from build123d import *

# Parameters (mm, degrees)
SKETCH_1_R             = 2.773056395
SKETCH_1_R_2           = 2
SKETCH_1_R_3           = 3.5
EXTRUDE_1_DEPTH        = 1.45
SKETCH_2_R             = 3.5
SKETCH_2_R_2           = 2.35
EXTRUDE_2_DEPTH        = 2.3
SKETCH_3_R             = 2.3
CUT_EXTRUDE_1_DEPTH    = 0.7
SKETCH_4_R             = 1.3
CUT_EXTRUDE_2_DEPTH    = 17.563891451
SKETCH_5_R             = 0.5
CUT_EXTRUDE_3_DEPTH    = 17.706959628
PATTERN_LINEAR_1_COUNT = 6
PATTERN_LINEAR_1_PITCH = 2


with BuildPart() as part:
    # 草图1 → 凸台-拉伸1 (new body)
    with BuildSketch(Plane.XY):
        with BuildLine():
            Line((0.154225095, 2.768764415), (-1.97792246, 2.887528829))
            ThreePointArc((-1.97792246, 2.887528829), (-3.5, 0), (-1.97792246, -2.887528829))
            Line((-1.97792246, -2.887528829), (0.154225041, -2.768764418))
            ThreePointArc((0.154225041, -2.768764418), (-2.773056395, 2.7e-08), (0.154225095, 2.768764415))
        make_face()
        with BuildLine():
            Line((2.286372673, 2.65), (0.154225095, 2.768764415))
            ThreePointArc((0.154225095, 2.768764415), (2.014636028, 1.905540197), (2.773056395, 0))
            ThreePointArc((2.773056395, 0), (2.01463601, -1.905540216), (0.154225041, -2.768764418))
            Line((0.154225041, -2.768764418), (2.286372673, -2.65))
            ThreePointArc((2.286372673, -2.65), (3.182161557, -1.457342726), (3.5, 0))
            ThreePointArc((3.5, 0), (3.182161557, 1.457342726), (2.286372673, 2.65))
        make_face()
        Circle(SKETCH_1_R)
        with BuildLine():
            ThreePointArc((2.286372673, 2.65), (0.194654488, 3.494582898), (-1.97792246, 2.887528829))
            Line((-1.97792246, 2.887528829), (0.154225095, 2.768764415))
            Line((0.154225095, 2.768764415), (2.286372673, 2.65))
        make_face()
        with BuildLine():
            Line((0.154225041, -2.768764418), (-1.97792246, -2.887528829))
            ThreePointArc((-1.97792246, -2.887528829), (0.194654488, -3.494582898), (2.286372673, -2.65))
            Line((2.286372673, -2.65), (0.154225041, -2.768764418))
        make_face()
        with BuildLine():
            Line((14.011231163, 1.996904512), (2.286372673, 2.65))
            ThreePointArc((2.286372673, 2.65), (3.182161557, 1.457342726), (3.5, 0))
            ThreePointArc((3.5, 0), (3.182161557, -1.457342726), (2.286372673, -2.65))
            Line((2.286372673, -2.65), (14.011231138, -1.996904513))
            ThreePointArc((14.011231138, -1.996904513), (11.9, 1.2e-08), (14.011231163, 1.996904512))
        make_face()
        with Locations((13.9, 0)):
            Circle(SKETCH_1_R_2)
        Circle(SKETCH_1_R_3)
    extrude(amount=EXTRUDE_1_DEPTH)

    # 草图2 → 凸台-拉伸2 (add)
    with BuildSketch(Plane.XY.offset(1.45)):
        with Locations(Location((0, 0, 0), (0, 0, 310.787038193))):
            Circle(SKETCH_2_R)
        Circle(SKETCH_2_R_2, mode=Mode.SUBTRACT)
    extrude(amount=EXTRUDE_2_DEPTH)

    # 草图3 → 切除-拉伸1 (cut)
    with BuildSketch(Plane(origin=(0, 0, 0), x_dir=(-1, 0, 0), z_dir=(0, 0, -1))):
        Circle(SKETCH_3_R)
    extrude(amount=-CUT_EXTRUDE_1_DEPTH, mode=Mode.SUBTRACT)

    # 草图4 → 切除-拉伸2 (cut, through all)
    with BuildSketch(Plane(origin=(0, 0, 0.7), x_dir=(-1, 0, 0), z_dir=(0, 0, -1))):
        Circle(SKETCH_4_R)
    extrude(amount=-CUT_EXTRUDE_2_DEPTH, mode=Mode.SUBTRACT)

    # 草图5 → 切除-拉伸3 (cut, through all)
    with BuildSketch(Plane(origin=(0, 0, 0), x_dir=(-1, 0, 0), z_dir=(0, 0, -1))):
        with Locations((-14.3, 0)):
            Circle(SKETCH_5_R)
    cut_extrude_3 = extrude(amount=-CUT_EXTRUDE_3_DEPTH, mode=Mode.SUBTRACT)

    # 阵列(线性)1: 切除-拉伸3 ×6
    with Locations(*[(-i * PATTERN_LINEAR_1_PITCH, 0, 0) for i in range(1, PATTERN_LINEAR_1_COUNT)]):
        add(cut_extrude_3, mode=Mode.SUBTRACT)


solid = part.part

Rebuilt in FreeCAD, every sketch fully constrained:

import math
import FreeCAD as App
import Part
import Sketcher

V = App.Vector
Q = App.Units.Quantity

doc = App.newDocument("Part")
body = doc.addObject("PartDesign::Body", "Body")

# Sketch on XY plane
sketch1 = doc.addObject("Sketcher::SketchObject", "Sketch")
body.addObject(sketch1)
sketch1.AttachmentSupport = (doc.XY_Plane, [""])
sketch1.MapMode = "FlatFace"
sketch1.addGeometry([
    Part.ArcOfCircle(Part.Circle(V(0, 0, 0), V(0, 0, 1), 3.5), math.radians(49), math.radians(124)),  # 0
    Part.ArcOfCircle(Part.Circle(V(0, 0, 0), V(0, 0, 1), 3.5), math.radians(124), math.radians(236)),  # 1
    Part.ArcOfCircle(Part.Circle(V(0, 0, 0), V(0, 0, 1), 3.5), math.radians(-124), math.radians(-49)),  # 2
    Part.LineSegment(V(2.3, -2.6, 0), V(14, -2, 0)),  # 3
    Part.ArcOfCircle(Part.Circle(V(13.9, 0, 0), V(0, 0, 1), 2), math.radians(-87), math.radians(87)),  # 4
    Part.LineSegment(V(14, 2, 0), V(2.3, 2.6, 0)),  # 5
], False)
sketch1.addConstraint([
    Sketcher.Constraint("Tangent", 0, 2, 1, 1),
    Sketcher.Constraint("Tangent", 1, 2, 2, 1),
    Sketcher.Constraint("Coincident", 2, 2, 3, 1),
    Sketcher.Constraint("Tangent", 3, 2, 4, 1),
    Sketcher.Constraint("Tangent", 4, 2, 5, 1),
    Sketcher.Constraint("Coincident", 5, 2, 0, 1),
    Sketcher.Constraint("Coincident", 0, 3, -1, 1),
    Sketcher.Constraint("Coincident", 2, 3, -1, 1),
    Sketcher.Constraint("Symmetric", 3, 2, 4, 2, -1),
    Sketcher.Constraint("Vertical", 0, 2, 1, 2),
    Sketcher.Constraint("Radius", 4, Q("2 mm")),
    Sketcher.Constraint("Radius", 0, Q("3.5 mm")),
    Sketcher.Constraint("DistanceX", -1, 1, 4, 3, Q("13.9 mm")),
    Sketcher.Constraint("DistanceY", 2, 2, 5, 2, Q("5.3 mm")),
    Sketcher.Constraint("DistanceY", -1, 1, 0, 2, Q("2.887529 mm")),
])
pad1 = doc.addObject("PartDesign::Pad", "Pad")
body.addObject(pad1)
pad1.Profile = sketch1
pad1.Length = 1.45

# Sketch on XY plane
sketch2 = doc.addObject("Sketcher::SketchObject", "Sketch001")
body.addObject(sketch2)
sketch2.AttachmentSupport = (doc.XY_Plane, [""])
sketch2.MapMode = "FlatFace"
sketch2.AttachmentOffset = App.Placement(V(0, 0, 1.45), App.Rotation())
sketch2.addGeometry([
    Part.Circle(V(0, 0, 0), V(0, 0, 1), 3.5),
    Part.Circle(V(0, 0, 0), V(0, 0, 1), 2.4),
], False)
sketch2.addConstraint([
    Sketcher.Constraint("Coincident", 0, 3, -1, 1),
    Sketcher.Constraint("Coincident", 1, 3, -1, 1),
    Sketcher.Constraint("Diameter", 0, Q("7 mm")),
    Sketcher.Constraint("Diameter", 1, Q("4.7 mm")),
])
pad2 = doc.addObject("PartDesign::Pad", "Pad001")
body.addObject(pad2)
pad2.Profile = sketch2
pad2.Length = 2.3

# Sketch on XY plane
sketch3 = doc.addObject("Sketcher::SketchObject", "Sketch002")
body.addObject(sketch3)
sketch3.AttachmentSupport = (doc.XY_Plane, [""])
sketch3.MapMode = "FlatFace"
sketch3.addGeometry(Part.Circle(V(0, 0, 0), V(0, 0, 1), 2.3), False)
sketch3.addConstraint([
    Sketcher.Constraint("Coincident", 0, 3, -1, 1),
    Sketcher.Constraint("Diameter", 0, Q("4.6 mm")),
])
pocket1 = doc.addObject("PartDesign::Pocket", "Pocket")
body.addObject(pocket1)
pocket1.Profile = sketch3
pocket1.Length = 0.7
pocket1.Reversed = True

# Sketch on XY plane
sketch4 = doc.addObject("Sketcher::SketchObject", "Sketch003")
body.addObject(sketch4)
sketch4.AttachmentSupport = (doc.XY_Plane, [""])
sketch4.MapMode = "FlatFace"
sketch4.AttachmentOffset = App.Placement(V(0, 0, 0.7), App.Rotation())
sketch4.addGeometry(Part.Circle(V(0, 0, 0), V(0, 0, 1), 1.3), False)
sketch4.addConstraint([
    Sketcher.Constraint("Coincident", 0, 3, -1, 1),
    Sketcher.Constraint("Diameter", 0, Q("2.6 mm")),
])
pocket2 = doc.addObject("PartDesign::Pocket", "Pocket001")
body.addObject(pocket2)
pocket2.Profile = sketch4
pocket2.Type = "ThroughAll"
pocket2.Reversed = True

# Sketch on XY plane
sketch5 = doc.addObject("Sketcher::SketchObject", "Sketch004")
body.addObject(sketch5)
sketch5.AttachmentSupport = (doc.XY_Plane, [""])
sketch5.MapMode = "FlatFace"
sketch5.addGeometry(Part.Circle(V(14.3, 0, 0), V(0, 0, 1), 0.5), False)
sketch5.addConstraint([
    Sketcher.Constraint("PointOnObject", 0, 3, -1),
    Sketcher.Constraint("Diameter", 0, Q("1 mm")),
    Sketcher.Constraint("DistanceX", -1, 1, 0, 3, Q("14.3 mm")),
])
pocket3 = doc.addObject("PartDesign::Pocket", "Pocket002")
body.addObject(pocket3)
pocket3.Profile = sketch5
pocket3.Type = "ThroughAll"
pocket3.Reversed = True
doc.recompute()

linearpattern = doc.addObject("PartDesign::LinearPattern", "LinearPattern")
body.addObject(linearpattern)
linearpattern.Originals = [pocket3]
linearpattern.Direction = (doc.X_Axis, [""])
linearpattern.Mode = "offset"
linearpattern.Offset = 2
linearpattern.Occurrences = 6
linearpattern.Reversed = True
body.Tip = linearpattern

doc.recompute()
